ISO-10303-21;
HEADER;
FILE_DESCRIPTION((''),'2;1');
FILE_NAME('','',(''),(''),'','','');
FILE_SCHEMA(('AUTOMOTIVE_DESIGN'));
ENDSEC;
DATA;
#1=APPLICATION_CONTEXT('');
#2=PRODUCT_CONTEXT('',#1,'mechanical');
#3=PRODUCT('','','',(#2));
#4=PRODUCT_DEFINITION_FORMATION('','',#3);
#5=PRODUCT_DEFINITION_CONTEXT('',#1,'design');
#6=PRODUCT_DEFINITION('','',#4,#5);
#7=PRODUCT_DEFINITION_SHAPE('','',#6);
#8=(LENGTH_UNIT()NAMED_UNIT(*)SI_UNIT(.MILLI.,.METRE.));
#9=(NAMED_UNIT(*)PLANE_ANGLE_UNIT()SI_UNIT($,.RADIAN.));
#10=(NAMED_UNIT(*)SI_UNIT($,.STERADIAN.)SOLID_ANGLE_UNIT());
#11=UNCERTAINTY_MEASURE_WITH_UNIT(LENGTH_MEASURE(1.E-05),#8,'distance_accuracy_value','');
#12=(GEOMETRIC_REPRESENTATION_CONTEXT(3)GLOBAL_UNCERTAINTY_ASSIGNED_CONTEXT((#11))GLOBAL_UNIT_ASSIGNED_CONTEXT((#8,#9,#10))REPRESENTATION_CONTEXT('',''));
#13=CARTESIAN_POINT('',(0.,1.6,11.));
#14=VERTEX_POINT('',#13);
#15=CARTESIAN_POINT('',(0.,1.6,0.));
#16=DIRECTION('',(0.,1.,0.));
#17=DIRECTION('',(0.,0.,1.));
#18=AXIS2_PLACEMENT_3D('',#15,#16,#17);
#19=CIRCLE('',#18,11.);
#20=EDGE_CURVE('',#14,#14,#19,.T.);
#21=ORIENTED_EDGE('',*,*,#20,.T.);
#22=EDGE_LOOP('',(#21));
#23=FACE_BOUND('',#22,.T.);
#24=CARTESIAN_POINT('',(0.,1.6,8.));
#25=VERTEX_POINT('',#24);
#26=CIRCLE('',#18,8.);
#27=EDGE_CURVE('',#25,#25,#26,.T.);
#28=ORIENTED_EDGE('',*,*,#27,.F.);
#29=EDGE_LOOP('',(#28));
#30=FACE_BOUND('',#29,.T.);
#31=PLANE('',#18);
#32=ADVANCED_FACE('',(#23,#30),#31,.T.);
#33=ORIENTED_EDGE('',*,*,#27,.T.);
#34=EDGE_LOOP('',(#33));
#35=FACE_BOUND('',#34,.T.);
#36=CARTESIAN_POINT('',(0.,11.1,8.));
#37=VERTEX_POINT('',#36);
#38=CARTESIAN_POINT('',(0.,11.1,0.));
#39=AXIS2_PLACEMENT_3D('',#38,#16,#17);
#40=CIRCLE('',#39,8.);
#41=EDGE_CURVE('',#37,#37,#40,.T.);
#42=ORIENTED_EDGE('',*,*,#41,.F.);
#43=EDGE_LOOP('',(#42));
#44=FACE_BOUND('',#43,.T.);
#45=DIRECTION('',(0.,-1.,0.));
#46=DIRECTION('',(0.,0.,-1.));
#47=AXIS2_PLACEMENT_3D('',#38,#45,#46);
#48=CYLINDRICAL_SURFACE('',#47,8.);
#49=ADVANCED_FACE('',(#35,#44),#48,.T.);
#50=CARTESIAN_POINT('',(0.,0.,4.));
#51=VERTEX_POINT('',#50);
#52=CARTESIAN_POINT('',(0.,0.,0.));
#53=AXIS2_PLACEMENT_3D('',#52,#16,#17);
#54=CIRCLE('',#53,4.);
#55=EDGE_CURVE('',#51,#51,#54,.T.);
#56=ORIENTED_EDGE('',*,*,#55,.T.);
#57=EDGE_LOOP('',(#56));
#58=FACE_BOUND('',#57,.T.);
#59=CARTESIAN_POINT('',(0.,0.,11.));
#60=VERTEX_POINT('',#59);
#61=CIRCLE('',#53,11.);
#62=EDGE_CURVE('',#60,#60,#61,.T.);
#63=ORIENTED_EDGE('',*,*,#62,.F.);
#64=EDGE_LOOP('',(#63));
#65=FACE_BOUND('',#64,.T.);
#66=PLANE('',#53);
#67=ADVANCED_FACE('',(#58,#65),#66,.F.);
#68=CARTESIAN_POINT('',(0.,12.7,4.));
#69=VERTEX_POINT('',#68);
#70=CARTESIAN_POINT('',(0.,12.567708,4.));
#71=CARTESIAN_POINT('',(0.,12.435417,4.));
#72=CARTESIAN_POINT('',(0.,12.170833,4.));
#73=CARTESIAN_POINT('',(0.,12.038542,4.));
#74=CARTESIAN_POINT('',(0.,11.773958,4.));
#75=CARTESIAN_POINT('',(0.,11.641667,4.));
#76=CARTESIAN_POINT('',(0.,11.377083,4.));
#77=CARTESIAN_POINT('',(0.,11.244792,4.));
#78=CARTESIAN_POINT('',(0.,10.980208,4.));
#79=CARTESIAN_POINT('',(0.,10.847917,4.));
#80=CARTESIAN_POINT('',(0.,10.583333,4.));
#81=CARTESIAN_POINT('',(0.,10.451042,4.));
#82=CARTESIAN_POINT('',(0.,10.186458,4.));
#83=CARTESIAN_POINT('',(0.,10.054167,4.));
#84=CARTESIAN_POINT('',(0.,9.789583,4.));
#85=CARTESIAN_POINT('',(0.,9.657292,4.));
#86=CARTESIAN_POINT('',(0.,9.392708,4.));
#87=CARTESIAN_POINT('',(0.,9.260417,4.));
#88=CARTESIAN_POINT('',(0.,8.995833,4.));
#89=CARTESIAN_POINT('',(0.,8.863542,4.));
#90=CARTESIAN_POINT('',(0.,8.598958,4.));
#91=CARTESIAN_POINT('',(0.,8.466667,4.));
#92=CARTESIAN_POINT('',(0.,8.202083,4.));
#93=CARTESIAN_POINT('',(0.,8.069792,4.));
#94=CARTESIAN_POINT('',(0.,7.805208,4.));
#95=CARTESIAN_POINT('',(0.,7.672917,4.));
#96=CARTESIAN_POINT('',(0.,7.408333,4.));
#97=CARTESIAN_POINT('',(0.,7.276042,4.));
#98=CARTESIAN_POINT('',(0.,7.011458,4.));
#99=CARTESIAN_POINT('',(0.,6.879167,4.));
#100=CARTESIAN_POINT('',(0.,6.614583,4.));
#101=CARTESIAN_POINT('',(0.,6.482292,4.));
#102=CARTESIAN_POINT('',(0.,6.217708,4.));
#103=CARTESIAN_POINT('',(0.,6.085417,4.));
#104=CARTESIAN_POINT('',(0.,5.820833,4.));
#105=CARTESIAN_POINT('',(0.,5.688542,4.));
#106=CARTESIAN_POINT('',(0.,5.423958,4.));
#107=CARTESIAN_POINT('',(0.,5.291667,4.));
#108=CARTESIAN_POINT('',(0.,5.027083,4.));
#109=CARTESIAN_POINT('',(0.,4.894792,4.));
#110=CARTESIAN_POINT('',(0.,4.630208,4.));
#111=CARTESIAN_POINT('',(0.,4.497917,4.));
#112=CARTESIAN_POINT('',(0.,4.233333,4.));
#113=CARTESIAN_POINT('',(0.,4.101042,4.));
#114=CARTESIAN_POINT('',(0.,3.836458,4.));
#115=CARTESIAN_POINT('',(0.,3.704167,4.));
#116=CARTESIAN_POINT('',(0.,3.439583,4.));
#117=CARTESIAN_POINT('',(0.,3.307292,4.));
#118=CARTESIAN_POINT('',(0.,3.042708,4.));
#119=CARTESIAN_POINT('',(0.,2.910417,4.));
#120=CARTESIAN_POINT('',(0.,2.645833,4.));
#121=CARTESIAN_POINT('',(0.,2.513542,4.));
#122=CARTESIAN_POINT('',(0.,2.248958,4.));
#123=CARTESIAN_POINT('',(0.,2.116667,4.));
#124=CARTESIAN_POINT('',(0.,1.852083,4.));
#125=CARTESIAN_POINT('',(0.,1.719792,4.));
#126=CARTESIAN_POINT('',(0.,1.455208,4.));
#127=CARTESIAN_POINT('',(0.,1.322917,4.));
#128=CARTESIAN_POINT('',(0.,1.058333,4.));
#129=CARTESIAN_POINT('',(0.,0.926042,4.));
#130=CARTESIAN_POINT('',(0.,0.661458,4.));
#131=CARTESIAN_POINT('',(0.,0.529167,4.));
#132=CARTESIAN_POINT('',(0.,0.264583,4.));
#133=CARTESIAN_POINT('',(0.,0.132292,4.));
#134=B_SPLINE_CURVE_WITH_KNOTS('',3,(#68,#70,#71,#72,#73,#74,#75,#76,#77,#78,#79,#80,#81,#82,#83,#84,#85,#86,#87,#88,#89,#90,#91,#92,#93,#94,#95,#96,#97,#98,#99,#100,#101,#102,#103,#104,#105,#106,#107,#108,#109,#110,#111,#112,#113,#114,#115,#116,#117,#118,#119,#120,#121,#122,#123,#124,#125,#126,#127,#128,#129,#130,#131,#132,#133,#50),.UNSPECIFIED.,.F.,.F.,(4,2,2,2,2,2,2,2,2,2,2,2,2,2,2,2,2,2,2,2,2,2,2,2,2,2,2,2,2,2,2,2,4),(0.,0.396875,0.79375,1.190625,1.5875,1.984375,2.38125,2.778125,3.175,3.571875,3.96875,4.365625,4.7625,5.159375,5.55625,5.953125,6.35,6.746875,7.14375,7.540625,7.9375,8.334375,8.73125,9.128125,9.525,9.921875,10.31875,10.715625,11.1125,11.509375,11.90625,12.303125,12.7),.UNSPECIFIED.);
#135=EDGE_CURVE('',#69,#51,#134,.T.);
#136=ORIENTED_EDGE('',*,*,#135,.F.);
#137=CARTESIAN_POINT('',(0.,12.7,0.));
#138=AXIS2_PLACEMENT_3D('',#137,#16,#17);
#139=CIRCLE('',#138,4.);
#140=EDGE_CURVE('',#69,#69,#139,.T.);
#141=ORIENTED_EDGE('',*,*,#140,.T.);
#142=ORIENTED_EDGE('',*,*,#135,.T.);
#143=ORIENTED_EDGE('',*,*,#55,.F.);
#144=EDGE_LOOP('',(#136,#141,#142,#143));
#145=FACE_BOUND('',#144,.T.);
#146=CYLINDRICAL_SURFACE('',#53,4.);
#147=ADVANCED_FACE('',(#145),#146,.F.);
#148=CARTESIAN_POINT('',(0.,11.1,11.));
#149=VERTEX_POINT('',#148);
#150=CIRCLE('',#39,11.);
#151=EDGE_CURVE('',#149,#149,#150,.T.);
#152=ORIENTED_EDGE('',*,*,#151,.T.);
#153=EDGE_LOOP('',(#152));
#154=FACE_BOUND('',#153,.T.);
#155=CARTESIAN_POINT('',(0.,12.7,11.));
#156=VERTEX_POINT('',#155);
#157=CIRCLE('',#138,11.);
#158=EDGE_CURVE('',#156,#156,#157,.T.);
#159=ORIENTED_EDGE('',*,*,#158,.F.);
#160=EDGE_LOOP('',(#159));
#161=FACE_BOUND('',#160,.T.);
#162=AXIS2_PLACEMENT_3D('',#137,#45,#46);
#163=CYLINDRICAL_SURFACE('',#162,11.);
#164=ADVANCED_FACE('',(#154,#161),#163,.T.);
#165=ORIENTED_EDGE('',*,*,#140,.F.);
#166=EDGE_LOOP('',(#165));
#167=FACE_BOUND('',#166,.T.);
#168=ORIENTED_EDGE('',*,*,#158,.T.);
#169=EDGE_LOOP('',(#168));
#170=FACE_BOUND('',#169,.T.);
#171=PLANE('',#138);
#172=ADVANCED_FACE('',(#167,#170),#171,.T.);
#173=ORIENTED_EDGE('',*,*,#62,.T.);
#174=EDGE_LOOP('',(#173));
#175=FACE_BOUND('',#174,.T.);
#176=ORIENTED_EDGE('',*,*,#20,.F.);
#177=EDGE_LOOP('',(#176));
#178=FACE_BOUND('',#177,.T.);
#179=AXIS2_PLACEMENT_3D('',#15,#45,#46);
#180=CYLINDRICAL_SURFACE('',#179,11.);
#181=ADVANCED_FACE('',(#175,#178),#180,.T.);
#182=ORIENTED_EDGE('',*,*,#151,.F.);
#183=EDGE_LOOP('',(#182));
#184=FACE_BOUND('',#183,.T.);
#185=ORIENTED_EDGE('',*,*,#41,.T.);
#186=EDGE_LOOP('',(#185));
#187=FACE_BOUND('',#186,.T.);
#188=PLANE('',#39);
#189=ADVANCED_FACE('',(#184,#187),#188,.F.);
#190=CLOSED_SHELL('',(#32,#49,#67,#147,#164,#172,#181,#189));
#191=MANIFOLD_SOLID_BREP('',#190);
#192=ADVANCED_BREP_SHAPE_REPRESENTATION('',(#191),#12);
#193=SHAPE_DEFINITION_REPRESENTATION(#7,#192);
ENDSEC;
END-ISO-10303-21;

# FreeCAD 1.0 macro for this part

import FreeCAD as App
import Part
import Sketcher

V = App.Vector

doc = App.newDocument("Part")
body = doc.addObject("PartDesign::Body", "Body")

# Sketch on XZ plane
sketch1 = doc.addObject("Sketcher::SketchObject", "Sketch")
body.addObject(sketch1)
sketch1.AttachmentSupport = (doc.XZ_Plane, [""])
sketch1.MapMode = "FlatFace"
sketch1.addGeometry(Part.Circle(V(0, 0, 0), V(0, 0, 1), 11), False)
sketch1.addConstraint(Sketcher.Constraint("Coincident", 0, 3, -1, 1))
sketch1.addConstraint(Sketcher.Constraint("Diameter", 0, 22.0))
pad1 = doc.addObject("PartDesign::Pad", "Pad")
body.addObject(pad1)
pad1.Profile = sketch1
pad1.Length = 1.6
pad1.Reversed = True

# Sketch on XZ plane
sketch2 = doc.addObject("Sketcher::SketchObject", "Sketch001")
body.addObject(sketch2)
sketch2.AttachmentSupport = (doc.XZ_Plane, [""])
sketch2.MapMode = "FlatFace"
sketch2.AttachmentOffset = App.Placement(V(0, 0, -1.6), App.Rotation())
sketch2.addGeometry(Part.Circle(V(0, 0, 0), V(0, 0, 1), 8), False)
sketch2.addConstraint(Sketcher.Constraint("Coincident", 0, 3, -1, 1))
sketch2.addConstraint(Sketcher.Constraint("Diameter", 0, 16.0))
pad2 = doc.addObject("PartDesign::Pad", "Pad001")
body.addObject(pad2)
pad2.Profile = sketch2
pad2.Length = 9.5
pad2.Reversed = True

# Sketch on XZ plane
sketch3 = doc.addObject("Sketcher::SketchObject", "Sketch002")
body.addObject(sketch3)
sketch3.AttachmentSupport = (doc.XZ_Plane, [""])
sketch3.MapMode = "FlatFace"
sketch3.AttachmentOffset = App.Placement(V(0, 0, -11.1), App.Rotation())
sketch3.addGeometry(Part.Circle(V(0, 0, 0), V(0, 0, 1), 11), False)
sketch3.addConstraint(Sketcher.Constraint("Coincident", 0, 3, -1, 1))
sketch3.addConstraint(Sketcher.Constraint("Diameter", 0, 22.0))
pad3 = doc.addObject("PartDesign::Pad", "Pad002")
body.addObject(pad3)
pad3.Profile = sketch3
pad3.Length = 1.6
pad3.Reversed = True

# Sketch on XZ plane
sketch4 = doc.addObject("Sketcher::SketchObject", "Sketch003")
body.addObject(sketch4)
sketch4.AttachmentSupport = (doc.XZ_Plane, [""])
sketch4.MapMode = "FlatFace"
sketch4.AttachmentOffset = App.Placement(V(0, 0, -12.7), App.Rotation())
sketch4.addGeometry(Part.Circle(V(0, 0, 0), V(0, 0, 1), 4), False)
sketch4.addConstraint(Sketcher.Constraint("Coincident", 0, 3, -1, 1))
sketch4.addConstraint(Sketcher.Constraint("Diameter", 0, 8.0))
pocket1 = doc.addObject("PartDesign::Pocket", "Pocket")
body.addObject(pocket1)
pocket1.Profile = sketch4
pocket1.Type = "ThroughAll"
pocket1.Midplane = True

doc.recompute()
